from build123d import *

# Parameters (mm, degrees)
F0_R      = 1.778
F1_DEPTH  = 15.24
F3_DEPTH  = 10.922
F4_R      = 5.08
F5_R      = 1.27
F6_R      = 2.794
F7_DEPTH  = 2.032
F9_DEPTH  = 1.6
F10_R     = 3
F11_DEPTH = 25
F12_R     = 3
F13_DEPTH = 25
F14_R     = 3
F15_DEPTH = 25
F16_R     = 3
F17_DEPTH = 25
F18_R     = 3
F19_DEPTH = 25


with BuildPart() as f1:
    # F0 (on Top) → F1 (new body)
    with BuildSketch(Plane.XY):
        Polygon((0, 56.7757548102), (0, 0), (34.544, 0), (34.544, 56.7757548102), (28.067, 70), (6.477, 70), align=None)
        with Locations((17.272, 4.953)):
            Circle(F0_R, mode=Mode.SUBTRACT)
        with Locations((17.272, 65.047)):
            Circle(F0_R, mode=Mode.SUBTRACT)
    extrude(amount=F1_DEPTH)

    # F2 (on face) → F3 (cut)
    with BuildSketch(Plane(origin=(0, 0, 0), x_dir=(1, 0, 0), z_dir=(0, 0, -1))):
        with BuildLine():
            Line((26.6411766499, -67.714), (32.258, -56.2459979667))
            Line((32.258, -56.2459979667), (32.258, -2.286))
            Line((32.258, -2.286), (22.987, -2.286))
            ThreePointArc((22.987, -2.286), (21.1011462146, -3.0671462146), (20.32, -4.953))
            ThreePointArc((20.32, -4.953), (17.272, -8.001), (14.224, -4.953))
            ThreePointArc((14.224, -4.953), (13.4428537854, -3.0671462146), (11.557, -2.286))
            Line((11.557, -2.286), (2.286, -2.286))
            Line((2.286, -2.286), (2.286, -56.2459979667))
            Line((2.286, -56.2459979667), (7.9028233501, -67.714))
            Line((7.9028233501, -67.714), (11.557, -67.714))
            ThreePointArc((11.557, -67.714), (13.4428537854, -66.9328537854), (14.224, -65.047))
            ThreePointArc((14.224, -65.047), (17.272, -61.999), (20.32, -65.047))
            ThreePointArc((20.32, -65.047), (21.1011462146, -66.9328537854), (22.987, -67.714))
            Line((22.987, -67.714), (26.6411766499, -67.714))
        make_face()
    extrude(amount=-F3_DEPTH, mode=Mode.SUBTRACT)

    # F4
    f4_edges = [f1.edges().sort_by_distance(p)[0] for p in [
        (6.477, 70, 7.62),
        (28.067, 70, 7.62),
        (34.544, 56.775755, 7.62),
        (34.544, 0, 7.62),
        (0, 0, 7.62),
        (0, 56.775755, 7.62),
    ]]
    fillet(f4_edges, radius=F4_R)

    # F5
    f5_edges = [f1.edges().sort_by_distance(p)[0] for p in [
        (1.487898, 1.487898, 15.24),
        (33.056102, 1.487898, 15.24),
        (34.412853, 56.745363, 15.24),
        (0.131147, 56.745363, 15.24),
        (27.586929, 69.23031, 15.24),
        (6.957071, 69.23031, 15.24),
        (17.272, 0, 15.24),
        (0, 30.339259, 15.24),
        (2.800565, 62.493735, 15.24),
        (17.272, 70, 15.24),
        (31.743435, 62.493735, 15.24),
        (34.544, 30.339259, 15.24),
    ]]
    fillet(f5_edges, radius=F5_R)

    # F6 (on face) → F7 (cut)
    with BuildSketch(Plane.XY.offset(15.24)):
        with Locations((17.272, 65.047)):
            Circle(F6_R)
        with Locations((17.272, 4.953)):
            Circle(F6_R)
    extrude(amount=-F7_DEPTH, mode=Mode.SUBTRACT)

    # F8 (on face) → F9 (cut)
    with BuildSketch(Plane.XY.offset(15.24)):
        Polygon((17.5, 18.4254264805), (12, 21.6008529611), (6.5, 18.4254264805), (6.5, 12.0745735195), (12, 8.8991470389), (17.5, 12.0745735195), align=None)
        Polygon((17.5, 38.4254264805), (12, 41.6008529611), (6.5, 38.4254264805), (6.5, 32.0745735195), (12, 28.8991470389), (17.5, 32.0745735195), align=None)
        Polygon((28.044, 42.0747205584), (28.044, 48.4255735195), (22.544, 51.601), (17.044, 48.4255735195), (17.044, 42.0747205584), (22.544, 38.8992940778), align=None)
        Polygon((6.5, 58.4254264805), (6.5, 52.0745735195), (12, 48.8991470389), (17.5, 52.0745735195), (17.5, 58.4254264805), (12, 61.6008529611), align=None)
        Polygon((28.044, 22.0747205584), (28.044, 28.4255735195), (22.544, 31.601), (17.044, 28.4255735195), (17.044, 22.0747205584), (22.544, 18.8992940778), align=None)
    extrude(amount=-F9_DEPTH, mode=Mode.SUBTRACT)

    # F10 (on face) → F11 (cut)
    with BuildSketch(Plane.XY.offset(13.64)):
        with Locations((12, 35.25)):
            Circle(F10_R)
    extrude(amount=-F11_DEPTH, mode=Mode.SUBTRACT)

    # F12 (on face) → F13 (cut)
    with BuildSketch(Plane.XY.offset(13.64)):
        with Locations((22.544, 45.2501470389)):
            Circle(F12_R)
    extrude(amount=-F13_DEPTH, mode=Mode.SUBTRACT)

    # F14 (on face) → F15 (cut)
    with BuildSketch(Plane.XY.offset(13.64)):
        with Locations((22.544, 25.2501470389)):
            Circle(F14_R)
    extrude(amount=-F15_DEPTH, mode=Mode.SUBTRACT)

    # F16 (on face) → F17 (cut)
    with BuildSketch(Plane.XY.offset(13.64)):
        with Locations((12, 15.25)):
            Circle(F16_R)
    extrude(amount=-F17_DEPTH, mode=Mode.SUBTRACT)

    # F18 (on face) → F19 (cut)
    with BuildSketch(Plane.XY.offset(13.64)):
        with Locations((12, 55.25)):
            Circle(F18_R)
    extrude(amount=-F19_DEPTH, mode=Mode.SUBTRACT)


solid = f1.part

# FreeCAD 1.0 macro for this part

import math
import FreeCAD as App
import Part
import Sketcher
from FreeCAD import Vector
Q = App.Units.Quantity


def edges_at(feature, points):
    """Names of the edges that pass closest to the given points."""
    edges = feature.Shape.Edges
    near = lambda p: min(range(len(edges)), key=lambda i: edges[i].distToShape(Part.Vertex(*p))[0])
    return sorted({f"Edge{near(p) + 1}" for p in points})


def add_polygon(sketch, points):
    """Adds a closed chain of lines whose ends are joined by coincident constraints."""
    first, n = sketch.GeometryCount, len(points)
    for a, b in zip(points, points[1:] + points[:1]):
        sketch.addGeometry(Part.LineSegment(App.Vector(*a, 0), App.Vector(*b, 0)), False)
    for i in range(n):
        sketch.addConstraint(Sketcher.Constraint("Coincident", first + i, 2, first + (i + 1) % n, 1))

doc = App.newDocument("Part")
body = doc.addObject("PartDesign::Body", "Body")

# Sketch on XY plane
sketch1 = body.newObject("Sketcher::SketchObject", "Sketch")
sketch1.AttachmentSupport = (doc.getObject("XY_Plane"), [""])
sketch1.MapMode = "FlatFace"
add_polygon(sketch1, [(0, 56.775755), (0, 0), (34.544, 0), (34.544, 56.775755), (28.067, 70), (6.477, 70)])  # lines 0-5
sketch1.addGeometry(Part.Circle(Vector(17.272, 4.953, 0), Vector(0, 0, 1), 1.778), False)  # 6
sketch1.addGeometry(Part.Circle(Vector(17.272, 65.047, 0), Vector(0, 0, 1), 1.778), False)  # 7
sketch1.addConstraint(Sketcher.Constraint("Vertical", 0))
sketch1.addConstraint(Sketcher.Constraint("Horizontal", 1))
sketch1.addConstraint(Sketcher.Constraint("Vertical", 2))
sketch1.addConstraint(Sketcher.Constraint("Horizontal", 4))
sketch1.addConstraint(Sketcher.Constraint("Coincident", 0, 2, -1, 1))
sketch1.addConstraint(Sketcher.Constraint("Equal", 6, 7))
sketch1.addConstraint(Sketcher.Constraint("Horizontal", 2, 2, 5, 2))
sketch1.addConstraint(Sketcher.Constraint("Vertical", 6, 3, 7, 3))
sketch1.addConstraint(Sketcher.Constraint("Equal", 3, 5))
sketch1.addConstraint(Sketcher.Constraint("Diameter", 6, Q("0.14 in")))
sketch1.addConstraint(Sketcher.Constraint("DistanceX", 1, 1, 1, 2, Q("1.36 in")))
sketch1.addConstraint(Sketcher.Constraint("DistanceX", 4, 2, 4, 1, Q("0.85 in")))
sketch1.addConstraint(Sketcher.Constraint("DistanceX", -1, 1, 6, 3, Q("0.68 in")))
sketch1.addConstraint(Sketcher.Constraint("DistanceY", -1, 1, 6, 3, Q("0.195 in")))
sketch1.addConstraint(Sketcher.Constraint("DistanceY", 7, 3, 3, 2, Q("0.195 in")))
sketch1.addConstraint(Sketcher.Constraint("DistanceY", -1, 1, 7, 3, Q("65.047 mm")))
sketch1.addConstraint(Sketcher.Constraint("DistanceY", 0, 2, 0, 1, Q("56.775755 mm")))
pad1 = body.newObject("PartDesign::Pad", "Pad")
pad1.Profile = sketch1
pad1.Length = Q("0.6 in")

# Sketch on XY plane
sketch2 = body.newObject("Sketcher::SketchObject", "Sketch001")
sketch2.AttachmentSupport = (doc.getObject("XY_Plane"), [""])
sketch2.MapMode = "FlatFace"
sketch2.addGeometry(Part.LineSegment(Vector(26.641177, 67.714, 0), Vector(32.258, 56.245998, 0)), False)
sketch2.addGeometry(Part.LineSegment(Vector(32.258, 56.245998, 0), Vector(32.258, 2.286, 0)), False)
sketch2.addGeometry(Part.LineSegment(Vector(32.258, 2.286, 0), Vector(22.987, 2.286, 0)), False)
sketch2.addGeometry(Part.ArcOfCircle(Part.Circle(Vector(22.987, 4.953, 0), Vector(0, 0, 1), 2.667), math.radians(180), math.radians(270)), False)
sketch2.addGeometry(Part.ArcOfCircle(Part.Circle(Vector(17.272, 4.953, 0), Vector(0, 0, 1), 3.048), math.radians(0), math.radians(180)), False)
sketch2.addGeometry(Part.ArcOfCircle(Part.Circle(Vector(11.557, 4.953, 0), Vector(0, 0, 1), 2.667), math.radians(-90), math.radians(0)), False)
sketch2.addGeometry(Part.LineSegment(Vector(11.557, 2.286, 0), Vector(2.286, 2.286, 0)), False)
sketch2.addGeometry(Part.LineSegment(Vector(2.286, 2.286, 0), Vector(2.286, 56.245998, 0)), False)
sketch2.addGeometry(Part.LineSegment(Vector(2.286, 56.245998, 0), Vector(7.902823, 67.714, 0)), False)
sketch2.addGeometry(Part.LineSegment(Vector(7.902823, 67.714, 0), Vector(11.557, 67.714, 0)), False)
sketch2.addGeometry(Part.ArcOfCircle(Part.Circle(Vector(11.557, 65.047, 0), Vector(0, 0, 1), 2.667), math.radians(0), math.radians(90)), False)
sketch2.addGeometry(Part.ArcOfCircle(Part.Circle(Vector(17.272, 65.047, 0), Vector(0, 0, 1), 3.048), math.radians(180), math.radians(360)), False)
sketch2.addGeometry(Part.ArcOfCircle(Part.Circle(Vector(22.987, 65.047, 0), Vector(0, 0, 1), 2.667), math.radians(90), math.radians(180)), False)
sketch2.addGeometry(Part.LineSegment(Vector(22.987, 67.714, 0), Vector(26.641177, 67.714, 0)), False)
sketch2.addConstraint(Sketcher.Constraint("Coincident", 0, 2, 1, 1))
sketch2.addConstraint(Sketcher.Constraint("Coincident", 1, 2, 2, 1))
sketch2.addConstraint(Sketcher.Constraint("Tangent", 2, 2, 3, 2))
sketch2.addConstraint(Sketcher.Constraint("Tangent", 3, 1, 4, 1))
sketch2.addConstraint(Sketcher.Constraint("Tangent", 4, 2, 5, 2))
sketch2.addConstraint(Sketcher.Constraint("Tangent", 5, 1, 6, 1))
sketch2.addConstraint(Sketcher.Constraint("Coincident", 6, 2, 7, 1))
sketch2.addConstraint(Sketcher.Constraint("Coincident", 7, 2, 8, 1))
sketch2.addConstraint(Sketcher.Constraint("Coincident", 8, 2, 9, 1))
sketch2.addConstraint(Sketcher.Constraint("Tangent", 9, 2, 10, 2))
sketch2.addConstraint(Sketcher.Constraint("Tangent", 10, 1, 11, 1))
sketch2.addConstraint(Sketcher.Constraint("Tangent", 11, 2, 12, 2))
sketch2.addConstraint(Sketcher.Constraint("Tangent", 12, 1, 13, 1))
sketch2.addConstraint(Sketcher.Constraint("Coincident", 13, 2, 0, 1))
sketch2.addConstraint(Sketcher.Constraint("Vertical", 1))
sketch2.addConstraint(Sketcher.Constraint("Horizontal", 2))
sketch2.addConstraint(Sketcher.Constraint("Horizontal", 6))
sketch2.addConstraint(Sketcher.Constraint("Vertical", 7))
sketch2.addConstraint(Sketcher.Constraint("Horizontal", 9))
sketch2.addConstraint(Sketcher.Constraint("Horizontal", 13))
sketch2.addConstraint(Sketcher.Constraint("Equal", 3, 5))
sketch2.addConstraint(Sketcher.Constraint("Equal", 5, 10))
sketch2.addConstraint(Sketcher.Constraint("Equal", 4, 11))
sketch2.addConstraint(Sketcher.Constraint("Equal", 10, 12))
sketch2.addConstraint(Sketcher.Constraint("Horizontal", 3, 3, 4, 3))
sketch2.addConstraint(Sketcher.Constraint("Horizontal", 4, 3, 5, 3))
sketch2.addConstraint(Sketcher.Constraint("Horizontal", 10, 3, 11, 3))
sketch2.addConstraint(Sketcher.Constraint("Horizontal", 11, 3, 12, 3))
sketch2.addConstraint(Sketcher.Constraint("Horizontal", 0, 2, 7, 2))
sketch2.addConstraint(Sketcher.Constraint("Vertical", 5, 3, 10, 3))
sketch2.addConstraint(Sketcher.Constraint("Equal", 2, 6))
sketch2.addConstraint(Sketcher.Constraint("Equal", 9, 13))
sketch2.addConstraint(Sketcher.Constraint("Radius", 4, Q("0.12 in")))
sketch2.addConstraint(Sketcher.Constraint("Radius", 3, Q("0.105 in")))
sketch2.addConstraint(Sketcher.Constraint("DistanceX", -1, 1, 3, 1, Q("0.8 in")))
sketch2.addConstraint(Sketcher.Constraint("DistanceX", 2, 2, 2, 1, Q("0.365 in")))
sketch2.addConstraint(Sketcher.Constraint("DistanceY", -1, 1, 1, 2, Q("0.09 in")))
sketch2.addConstraint(Sketcher.Constraint("DistanceY", -1, 1, 10, 3, Q("65.047 mm")))
sketch2.addConstraint(Sketcher.Constraint("DistanceX", 9, 1, 9, 2, Q("3.654177 mm")))
sketch2.addConstraint(Sketcher.Constraint("DistanceY", 1, 2, 1, 1, Q("53.959998 mm")))
pocket1 = body.newObject("PartDesign::Pocket", "Pocket")
pocket1.Profile = sketch2
pocket1.Length = Q("0.43 in")
pocket1.Reversed = True
doc.recompute()

fillet = body.newObject("PartDesign::Fillet", "Fillet")
fillet.Base = (pocket1, edges_at(pocket1, [
    (6.477, 70, 7.62),
    (28.067, 70, 7.62),
    (34.544, 56.776, 7.62),
    (34.544, 0, 7.62),
    (0, 0, 7.62),
    (0, 56.776, 7.62),
]))
fillet.Radius = Q("0.2 in")
doc.recompute()

fillet2 = body.newObject("PartDesign::Fillet", "Fillet001")
fillet2.Base = (fillet, edges_at(fillet, [
    (1.488, 1.488, 15.24),
    (33.056, 1.488, 15.24),
    (34.413, 56.745, 15.24),
    (0.131, 56.745, 15.24),
    (27.587, 69.23, 15.24),
    (6.957, 69.23, 15.24),
    (17.272, 0, 15.24),
    (0, 30.339, 15.24),
    (2.801, 62.494, 15.24),
    (17.272, 70, 15.24),
    (31.743, 62.494, 15.24),
    (34.544, 30.339, 15.24),
]))
fillet2.Radius = Q("0.05 in")

# Sketch on XY plane
sketch3 = body.newObject("Sketcher::SketchObject", "Sketch002")
sketch3.AttachmentSupport = (doc.getObject("XY_Plane"), [""])
sketch3.MapMode = "FlatFace"
sketch3.AttachmentOffset = App.Placement(Vector(0, 0, 0.6 * 25.4), App.Rotation())
sketch3.addGeometry(Part.Circle(Vector(17.272, 65.047, 0), Vector(0, 0, 1), 2.794), False)
sketch3.addGeometry(Part.Circle(Vector(17.272, 4.953, 0), Vector(0, 0, 1), 2.794), False)
sketch3.addConstraint(Sketcher.Constraint("Equal", 0, 1))
sketch3.addConstraint(Sketcher.Constraint("Vertical", 0, 3, 1, 3))
sketch3.addConstraint(Sketcher.Constraint("Diameter", 0, Q("0.22 in")))
sketch3.addConstraint(Sketcher.Constraint("DistanceX", -1, 1, 0, 3, Q("0.68 in")))
sketch3.addConstraint(Sketcher.Constraint("DistanceY", -1, 1, 1, 3, Q("0.195 in")))
sketch3.addConstraint(Sketcher.Constraint("DistanceY", -1, 1, 0, 3, Q("65.047 mm")))
pocket2 = body.newObject("PartDesign::Pocket", "Pocket001")
pocket2.Profile = sketch3
pocket2.Length = Q("0.08 in")

# Sketch on XY plane
sketch4 = body.newObject("Sketcher::SketchObject", "Sketch003")
sketch4.AttachmentSupport = (doc.getObject("XY_Plane"), [""])
sketch4.MapMode = "FlatFace"
sketch4.AttachmentOffset = App.Placement(Vector(0, 0, 0.6 * 25.4), App.Rotation())
add_polygon(sketch4, [(17.5, 18.425426), (12, 21.600853), (6.5, 18.425426), (6.5, 12.074574), (12, 8.899147), (17.5, 12.074574)])  # lines 0-5
add_polygon(sketch4, [(17.5, 38.425426), (12, 41.600853), (6.5, 38.425426), (6.5, 32.074574), (12, 28.899147), (17.5, 32.074574)])  # lines 6-11
add_polygon(sketch4, [(28.044, 42.074721), (28.044, 48.425574), (22.544, 51.601), (17.044, 48.425574), (17.044, 42.074721), (22.544, 38.899294)])  # lines 12-17
add_polygon(sketch4, [(6.5, 58.425426), (6.5, 52.074574), (12, 48.899147), (17.5, 52.074574), (17.5, 58.425426), (12, 61.600853)])  # lines 18-23
add_polygon(sketch4, [(28.044, 22.074721), (28.044, 28.425574), (22.544, 31.601), (17.044, 28.425574), (17.044, 22.074721), (22.544, 18.899294)])  # lines 24-29
sketch4.addConstraint(Sketcher.Constraint("Vertical", 2))
sketch4.addConstraint(Sketcher.Constraint("Vertical", 5))
sketch4.addConstraint(Sketcher.Constraint("Vertical", 8))
sketch4.addConstraint(Sketcher.Constraint("Vertical", 11))
sketch4.addConstraint(Sketcher.Constraint("Vertical", 12))
sketch4.addConstraint(Sketcher.Constraint("Vertical", 15))
sketch4.addConstraint(Sketcher.Constraint("Vertical", 18))
sketch4.addConstraint(Sketcher.Constraint("Vertical", 21))
sketch4.addConstraint(Sketcher.Constraint("Vertical", 24))
sketch4.addConstraint(Sketcher.Constraint("Vertical", 27))
sketch4.addConstraint(Sketcher.Constraint("Parallel", 0, 3))
sketch4.addConstraint(Sketcher.Constraint("Parallel", 1, 4))
sketch4.addConstraint(Sketcher.Constraint("Parallel", 3, 6))
sketch4.addConstraint(Sketcher.Constraint("Parallel", 4, 7))
sketch4.addConstraint(Sketcher.Constraint("Parallel", 6, 9))
sketch4.addConstraint(Sketcher.Constraint("Parallel", 7, 10))
sketch4.addConstraint(Sketcher.Constraint("Parallel", 9, 13))
sketch4.addConstraint(Sketcher.Constraint("Parallel", 10, 14))
sketch4.addConstraint(Sketcher.Constraint("Parallel", 13, 16))
sketch4.addConstraint(Sketcher.Constraint("Parallel", 14, 17))
sketch4.addConstraint(Sketcher.Constraint("Parallel", 16, 19))
sketch4.addConstraint(Sketcher.Constraint("Parallel", 17, 20))
sketch4.addConstraint(Sketcher.Constraint("Parallel", 19, 22))
sketch4.addConstraint(Sketcher.Constraint("Parallel", 20, 23))
sketch4.addConstraint(Sketcher.Constraint("Parallel", 22, 25))
sketch4.addConstraint(Sketcher.Constraint("Parallel", 23, 26))
sketch4.addConstraint(Sketcher.Constraint("Parallel", 25, 28))
sketch4.addConstraint(Sketcher.Constraint("Parallel", 26, 29))
sketch4.addConstraint(Sketcher.Constraint("Horizontal", 2, 2, 4, 2))
sketch4.addConstraint(Sketcher.Constraint("Horizontal", 1, 2, 5, 2))
sketch4.addConstraint(Sketcher.Constraint("Horizontal", 8, 2, 10, 2))
sketch4.addConstraint(Sketcher.Constraint("Horizontal", 7, 2, 11, 2))
sketch4.addConstraint(Sketcher.Constraint("Horizontal", 12, 2, 14, 2))
sketch4.addConstraint(Sketcher.Constraint("Horizontal", 15, 2, 17, 2))
sketch4.addConstraint(Sketcher.Constraint("Horizontal", 18, 2, 20, 2))
sketch4.addConstraint(Sketcher.Constraint("Horizontal", 21, 2, 23, 2))
sketch4.addConstraint(Sketcher.Constraint("Horizontal", 24, 2, 26, 2))
sketch4.addConstraint(Sketcher.Constraint("Horizontal", 27, 2, 29, 2))
sketch4.addConstraint(Sketcher.Constraint("Vertical", 0, 2, 3, 2))
sketch4.addConstraint(Sketcher.Constraint("Vertical", 3, 2, 6, 2))
sketch4.addConstraint(Sketcher.Constraint("Vertical", 2, 2, 7, 2))
sketch4.addConstraint(Sketcher.Constraint("Vertical", 8, 2, 18, 2))
sketch4.addConstraint(Sketcher.Constraint("Vertical", 9, 2, 19, 2))
sketch4.addConstraint(Sketcher.Constraint("Vertical", 17, 2, 24, 2))
sketch4.addConstraint(Sketcher.Constraint("Vertical", 16, 2, 25, 2))
sketch4.addConstraint(Sketcher.Constraint("Equal", 5, 8))
sketch4.addConstraint(Sketcher.Constraint("Equal", 11, 12))
sketch4.addConstraint(Sketcher.Constraint("Equal", 15, 18))
sketch4.addConstraint(Sketcher.Constraint("Equal", 21, 24))
sketch4.addConstraint(Sketcher.Constraint("Equal", 10, 13))
sketch4.addConstraint(Sketcher.Constraint("Angle", 0, Q("150 deg")))
sketch4.addConstraint(Sketcher.Constraint("DistanceX", -1, 1, 0, 2, Q("12 mm")))
sketch4.addConstraint(Sketcher.Constraint("DistanceX", -1, 1, 1, 2, Q("6.5 mm")))
sketch4.addConstraint(Sketcher.Constraint("DistanceX", -1, 1, 12, 2, Q("28.044 mm")))
sketch4.addConstraint(Sketcher.Constraint("DistanceY", -1, 1, 13, 2, Q("51.601 mm")))
sketch4.addConstraint(Sketcher.Constraint("DistanceY", -1, 1, 25, 2, Q("31.601 mm")))
sketch4.addConstraint(Sketcher.Constraint("DistanceY", 0, 2, 6, 2, Q("20 mm")))
sketch4.addConstraint(Sketcher.Constraint("DistanceY", 10, 2, 12, 2, Q("16.351 mm")))
sketch4.addConstraint(Sketcher.Constraint("DistanceY", 14, 2, 18, 2, Q("3.649 mm")))
sketch4.addConstraint(Sketcher.Constraint("DistanceY", 2, 2, 2, 1, Q("6.350853 mm")))
pocket3 = body.newObject("PartDesign::Pocket", "Pocket002")
pocket3.Profile = sketch4
pocket3.Length = 1.6

# Sketch on XY plane
sketch5 = body.newObject("Sketcher::SketchObject", "Sketch004")
sketch5.AttachmentSupport = (doc.getObject("XY_Plane"), [""])
sketch5.MapMode = "FlatFace"
sketch5.AttachmentOffset = App.Placement(Vector(0, 0, 13.64), App.Rotation())
sketch5.addGeometry(Part.Circle(Vector(12, 35.25, 0), Vector(0, 0, 1), 3), False)
sketch5.addConstraint(Sketcher.Constraint("Diameter", 0, Q("6 mm")))
sketch5.addConstraint(Sketcher.Constraint("DistanceX", -1, 1, 0, 3, Q("12 mm")))
sketch5.addConstraint(Sketcher.Constraint("DistanceY", -1, 1, 0, 3, Q("35.25 mm")))
pocket4 = body.newObject("PartDesign::Pocket", "Pocket003")
pocket4.Profile = sketch5
pocket4.Length = 25

# Sketch on XY plane
sketch6 = body.newObject("Sketcher::SketchObject", "Sketch005")
sketch6.AttachmentSupport = (doc.getObject("XY_Plane"), [""])
sketch6.MapMode = "FlatFace"
sketch6.AttachmentOffset = App.Placement(Vector(0, 0, 13.64), App.Rotation())
sketch6.addGeometry(Part.Circle(Vector(22.544, 45.250147, 0), Vector(0, 0, 1), 3), False)
sketch6.addConstraint(Sketcher.Constraint("Diameter", 0, Q("6 mm")))
sketch6.addConstraint(Sketcher.Constraint("DistanceX", -1, 1, 0, 3, Q("22.544 mm")))
sketch6.addConstraint(Sketcher.Constraint("DistanceY", -1, 1, 0, 3, Q("45.250147 mm")))
pocket5 = body.newObject("PartDesign::Pocket", "Pocket004")
pocket5.Profile = sketch6
pocket5.Length = 25

# Sketch on XY plane
sketch7 = body.newObject("Sketcher::SketchObject", "Sketch006")
sketch7.AttachmentSupport = (doc.getObject("XY_Plane"), [""])
sketch7.MapMode = "FlatFace"
sketch7.AttachmentOffset = App.Placement(Vector(0, 0, 13.64), App.Rotation())
sketch7.addGeometry(Part.Circle(Vector(22.544, 25.250147, 0), Vector(0, 0, 1), 3), False)
sketch7.addConstraint(Sketcher.Constraint("Diameter", 0, Q("6 mm")))
sketch7.addConstraint(Sketcher.Constraint("DistanceX", -1, 1, 0, 3, Q("22.544 mm")))
sketch7.addConstraint(Sketcher.Constraint("DistanceY", -1, 1, 0, 3, Q("25.250147 mm")))
pocket6 = body.newObject("PartDesign::Pocket", "Pocket005")
pocket6.Profile = sketch7
pocket6.Length = 25

# Sketch on XY plane
sketch8 = body.newObject("Sketcher::SketchObject", "Sketch007")
sketch8.AttachmentSupport = (doc.getObject("XY_Plane"), [""])
sketch8.MapMode = "FlatFace"
sketch8.AttachmentOffset = App.Placement(Vector(0, 0, 13.64), App.Rotation())
sketch8.addGeometry(Part.Circle(Vector(12, 15.25, 0), Vector(0, 0, 1), 3), False)
sketch8.addConstraint(Sketcher.Constraint("Diameter", 0, Q("6 mm")))
sketch8.addConstraint(Sketcher.Constraint("DistanceX", -1, 1, 0, 3, Q("12 mm")))
sketch8.addConstraint(Sketcher.Constraint("DistanceY", -1, 1, 0, 3, Q("15.25 mm")))
pocket7 = body.newObject("PartDesign::Pocket", "Pocket006")
pocket7.Profile = sketch8
pocket7.Length = 25

# Sketch on XY plane
sketch9 = body.newObject("Sketcher::SketchObject", "Sketch008")
sketch9.AttachmentSupport = (doc.getObject("XY_Plane"), [""])
sketch9.MapMode = "FlatFace"
sketch9.AttachmentOffset = App.Placement(Vector(0, 0, 13.64), App.Rotation())
sketch9.addGeometry(Part.Circle(Vector(12, 55.25, 0), Vector(0, 0, 1), 3), False)
sketch9.addConstraint(Sketcher.Constraint("Diameter", 0, Q("6 mm")))
sketch9.addConstraint(Sketcher.Constraint("DistanceX", -1, 1, 0, 3, Q("12 mm")))
sketch9.addConstraint(Sketcher.Constraint("DistanceY", -1, 1, 0, 3, Q("55.25 mm")))
pocket8 = body.newObject("PartDesign::Pocket", "Pocket007")
pocket8.Profile = sketch9
pocket8.Length = 25

doc.recompute()
